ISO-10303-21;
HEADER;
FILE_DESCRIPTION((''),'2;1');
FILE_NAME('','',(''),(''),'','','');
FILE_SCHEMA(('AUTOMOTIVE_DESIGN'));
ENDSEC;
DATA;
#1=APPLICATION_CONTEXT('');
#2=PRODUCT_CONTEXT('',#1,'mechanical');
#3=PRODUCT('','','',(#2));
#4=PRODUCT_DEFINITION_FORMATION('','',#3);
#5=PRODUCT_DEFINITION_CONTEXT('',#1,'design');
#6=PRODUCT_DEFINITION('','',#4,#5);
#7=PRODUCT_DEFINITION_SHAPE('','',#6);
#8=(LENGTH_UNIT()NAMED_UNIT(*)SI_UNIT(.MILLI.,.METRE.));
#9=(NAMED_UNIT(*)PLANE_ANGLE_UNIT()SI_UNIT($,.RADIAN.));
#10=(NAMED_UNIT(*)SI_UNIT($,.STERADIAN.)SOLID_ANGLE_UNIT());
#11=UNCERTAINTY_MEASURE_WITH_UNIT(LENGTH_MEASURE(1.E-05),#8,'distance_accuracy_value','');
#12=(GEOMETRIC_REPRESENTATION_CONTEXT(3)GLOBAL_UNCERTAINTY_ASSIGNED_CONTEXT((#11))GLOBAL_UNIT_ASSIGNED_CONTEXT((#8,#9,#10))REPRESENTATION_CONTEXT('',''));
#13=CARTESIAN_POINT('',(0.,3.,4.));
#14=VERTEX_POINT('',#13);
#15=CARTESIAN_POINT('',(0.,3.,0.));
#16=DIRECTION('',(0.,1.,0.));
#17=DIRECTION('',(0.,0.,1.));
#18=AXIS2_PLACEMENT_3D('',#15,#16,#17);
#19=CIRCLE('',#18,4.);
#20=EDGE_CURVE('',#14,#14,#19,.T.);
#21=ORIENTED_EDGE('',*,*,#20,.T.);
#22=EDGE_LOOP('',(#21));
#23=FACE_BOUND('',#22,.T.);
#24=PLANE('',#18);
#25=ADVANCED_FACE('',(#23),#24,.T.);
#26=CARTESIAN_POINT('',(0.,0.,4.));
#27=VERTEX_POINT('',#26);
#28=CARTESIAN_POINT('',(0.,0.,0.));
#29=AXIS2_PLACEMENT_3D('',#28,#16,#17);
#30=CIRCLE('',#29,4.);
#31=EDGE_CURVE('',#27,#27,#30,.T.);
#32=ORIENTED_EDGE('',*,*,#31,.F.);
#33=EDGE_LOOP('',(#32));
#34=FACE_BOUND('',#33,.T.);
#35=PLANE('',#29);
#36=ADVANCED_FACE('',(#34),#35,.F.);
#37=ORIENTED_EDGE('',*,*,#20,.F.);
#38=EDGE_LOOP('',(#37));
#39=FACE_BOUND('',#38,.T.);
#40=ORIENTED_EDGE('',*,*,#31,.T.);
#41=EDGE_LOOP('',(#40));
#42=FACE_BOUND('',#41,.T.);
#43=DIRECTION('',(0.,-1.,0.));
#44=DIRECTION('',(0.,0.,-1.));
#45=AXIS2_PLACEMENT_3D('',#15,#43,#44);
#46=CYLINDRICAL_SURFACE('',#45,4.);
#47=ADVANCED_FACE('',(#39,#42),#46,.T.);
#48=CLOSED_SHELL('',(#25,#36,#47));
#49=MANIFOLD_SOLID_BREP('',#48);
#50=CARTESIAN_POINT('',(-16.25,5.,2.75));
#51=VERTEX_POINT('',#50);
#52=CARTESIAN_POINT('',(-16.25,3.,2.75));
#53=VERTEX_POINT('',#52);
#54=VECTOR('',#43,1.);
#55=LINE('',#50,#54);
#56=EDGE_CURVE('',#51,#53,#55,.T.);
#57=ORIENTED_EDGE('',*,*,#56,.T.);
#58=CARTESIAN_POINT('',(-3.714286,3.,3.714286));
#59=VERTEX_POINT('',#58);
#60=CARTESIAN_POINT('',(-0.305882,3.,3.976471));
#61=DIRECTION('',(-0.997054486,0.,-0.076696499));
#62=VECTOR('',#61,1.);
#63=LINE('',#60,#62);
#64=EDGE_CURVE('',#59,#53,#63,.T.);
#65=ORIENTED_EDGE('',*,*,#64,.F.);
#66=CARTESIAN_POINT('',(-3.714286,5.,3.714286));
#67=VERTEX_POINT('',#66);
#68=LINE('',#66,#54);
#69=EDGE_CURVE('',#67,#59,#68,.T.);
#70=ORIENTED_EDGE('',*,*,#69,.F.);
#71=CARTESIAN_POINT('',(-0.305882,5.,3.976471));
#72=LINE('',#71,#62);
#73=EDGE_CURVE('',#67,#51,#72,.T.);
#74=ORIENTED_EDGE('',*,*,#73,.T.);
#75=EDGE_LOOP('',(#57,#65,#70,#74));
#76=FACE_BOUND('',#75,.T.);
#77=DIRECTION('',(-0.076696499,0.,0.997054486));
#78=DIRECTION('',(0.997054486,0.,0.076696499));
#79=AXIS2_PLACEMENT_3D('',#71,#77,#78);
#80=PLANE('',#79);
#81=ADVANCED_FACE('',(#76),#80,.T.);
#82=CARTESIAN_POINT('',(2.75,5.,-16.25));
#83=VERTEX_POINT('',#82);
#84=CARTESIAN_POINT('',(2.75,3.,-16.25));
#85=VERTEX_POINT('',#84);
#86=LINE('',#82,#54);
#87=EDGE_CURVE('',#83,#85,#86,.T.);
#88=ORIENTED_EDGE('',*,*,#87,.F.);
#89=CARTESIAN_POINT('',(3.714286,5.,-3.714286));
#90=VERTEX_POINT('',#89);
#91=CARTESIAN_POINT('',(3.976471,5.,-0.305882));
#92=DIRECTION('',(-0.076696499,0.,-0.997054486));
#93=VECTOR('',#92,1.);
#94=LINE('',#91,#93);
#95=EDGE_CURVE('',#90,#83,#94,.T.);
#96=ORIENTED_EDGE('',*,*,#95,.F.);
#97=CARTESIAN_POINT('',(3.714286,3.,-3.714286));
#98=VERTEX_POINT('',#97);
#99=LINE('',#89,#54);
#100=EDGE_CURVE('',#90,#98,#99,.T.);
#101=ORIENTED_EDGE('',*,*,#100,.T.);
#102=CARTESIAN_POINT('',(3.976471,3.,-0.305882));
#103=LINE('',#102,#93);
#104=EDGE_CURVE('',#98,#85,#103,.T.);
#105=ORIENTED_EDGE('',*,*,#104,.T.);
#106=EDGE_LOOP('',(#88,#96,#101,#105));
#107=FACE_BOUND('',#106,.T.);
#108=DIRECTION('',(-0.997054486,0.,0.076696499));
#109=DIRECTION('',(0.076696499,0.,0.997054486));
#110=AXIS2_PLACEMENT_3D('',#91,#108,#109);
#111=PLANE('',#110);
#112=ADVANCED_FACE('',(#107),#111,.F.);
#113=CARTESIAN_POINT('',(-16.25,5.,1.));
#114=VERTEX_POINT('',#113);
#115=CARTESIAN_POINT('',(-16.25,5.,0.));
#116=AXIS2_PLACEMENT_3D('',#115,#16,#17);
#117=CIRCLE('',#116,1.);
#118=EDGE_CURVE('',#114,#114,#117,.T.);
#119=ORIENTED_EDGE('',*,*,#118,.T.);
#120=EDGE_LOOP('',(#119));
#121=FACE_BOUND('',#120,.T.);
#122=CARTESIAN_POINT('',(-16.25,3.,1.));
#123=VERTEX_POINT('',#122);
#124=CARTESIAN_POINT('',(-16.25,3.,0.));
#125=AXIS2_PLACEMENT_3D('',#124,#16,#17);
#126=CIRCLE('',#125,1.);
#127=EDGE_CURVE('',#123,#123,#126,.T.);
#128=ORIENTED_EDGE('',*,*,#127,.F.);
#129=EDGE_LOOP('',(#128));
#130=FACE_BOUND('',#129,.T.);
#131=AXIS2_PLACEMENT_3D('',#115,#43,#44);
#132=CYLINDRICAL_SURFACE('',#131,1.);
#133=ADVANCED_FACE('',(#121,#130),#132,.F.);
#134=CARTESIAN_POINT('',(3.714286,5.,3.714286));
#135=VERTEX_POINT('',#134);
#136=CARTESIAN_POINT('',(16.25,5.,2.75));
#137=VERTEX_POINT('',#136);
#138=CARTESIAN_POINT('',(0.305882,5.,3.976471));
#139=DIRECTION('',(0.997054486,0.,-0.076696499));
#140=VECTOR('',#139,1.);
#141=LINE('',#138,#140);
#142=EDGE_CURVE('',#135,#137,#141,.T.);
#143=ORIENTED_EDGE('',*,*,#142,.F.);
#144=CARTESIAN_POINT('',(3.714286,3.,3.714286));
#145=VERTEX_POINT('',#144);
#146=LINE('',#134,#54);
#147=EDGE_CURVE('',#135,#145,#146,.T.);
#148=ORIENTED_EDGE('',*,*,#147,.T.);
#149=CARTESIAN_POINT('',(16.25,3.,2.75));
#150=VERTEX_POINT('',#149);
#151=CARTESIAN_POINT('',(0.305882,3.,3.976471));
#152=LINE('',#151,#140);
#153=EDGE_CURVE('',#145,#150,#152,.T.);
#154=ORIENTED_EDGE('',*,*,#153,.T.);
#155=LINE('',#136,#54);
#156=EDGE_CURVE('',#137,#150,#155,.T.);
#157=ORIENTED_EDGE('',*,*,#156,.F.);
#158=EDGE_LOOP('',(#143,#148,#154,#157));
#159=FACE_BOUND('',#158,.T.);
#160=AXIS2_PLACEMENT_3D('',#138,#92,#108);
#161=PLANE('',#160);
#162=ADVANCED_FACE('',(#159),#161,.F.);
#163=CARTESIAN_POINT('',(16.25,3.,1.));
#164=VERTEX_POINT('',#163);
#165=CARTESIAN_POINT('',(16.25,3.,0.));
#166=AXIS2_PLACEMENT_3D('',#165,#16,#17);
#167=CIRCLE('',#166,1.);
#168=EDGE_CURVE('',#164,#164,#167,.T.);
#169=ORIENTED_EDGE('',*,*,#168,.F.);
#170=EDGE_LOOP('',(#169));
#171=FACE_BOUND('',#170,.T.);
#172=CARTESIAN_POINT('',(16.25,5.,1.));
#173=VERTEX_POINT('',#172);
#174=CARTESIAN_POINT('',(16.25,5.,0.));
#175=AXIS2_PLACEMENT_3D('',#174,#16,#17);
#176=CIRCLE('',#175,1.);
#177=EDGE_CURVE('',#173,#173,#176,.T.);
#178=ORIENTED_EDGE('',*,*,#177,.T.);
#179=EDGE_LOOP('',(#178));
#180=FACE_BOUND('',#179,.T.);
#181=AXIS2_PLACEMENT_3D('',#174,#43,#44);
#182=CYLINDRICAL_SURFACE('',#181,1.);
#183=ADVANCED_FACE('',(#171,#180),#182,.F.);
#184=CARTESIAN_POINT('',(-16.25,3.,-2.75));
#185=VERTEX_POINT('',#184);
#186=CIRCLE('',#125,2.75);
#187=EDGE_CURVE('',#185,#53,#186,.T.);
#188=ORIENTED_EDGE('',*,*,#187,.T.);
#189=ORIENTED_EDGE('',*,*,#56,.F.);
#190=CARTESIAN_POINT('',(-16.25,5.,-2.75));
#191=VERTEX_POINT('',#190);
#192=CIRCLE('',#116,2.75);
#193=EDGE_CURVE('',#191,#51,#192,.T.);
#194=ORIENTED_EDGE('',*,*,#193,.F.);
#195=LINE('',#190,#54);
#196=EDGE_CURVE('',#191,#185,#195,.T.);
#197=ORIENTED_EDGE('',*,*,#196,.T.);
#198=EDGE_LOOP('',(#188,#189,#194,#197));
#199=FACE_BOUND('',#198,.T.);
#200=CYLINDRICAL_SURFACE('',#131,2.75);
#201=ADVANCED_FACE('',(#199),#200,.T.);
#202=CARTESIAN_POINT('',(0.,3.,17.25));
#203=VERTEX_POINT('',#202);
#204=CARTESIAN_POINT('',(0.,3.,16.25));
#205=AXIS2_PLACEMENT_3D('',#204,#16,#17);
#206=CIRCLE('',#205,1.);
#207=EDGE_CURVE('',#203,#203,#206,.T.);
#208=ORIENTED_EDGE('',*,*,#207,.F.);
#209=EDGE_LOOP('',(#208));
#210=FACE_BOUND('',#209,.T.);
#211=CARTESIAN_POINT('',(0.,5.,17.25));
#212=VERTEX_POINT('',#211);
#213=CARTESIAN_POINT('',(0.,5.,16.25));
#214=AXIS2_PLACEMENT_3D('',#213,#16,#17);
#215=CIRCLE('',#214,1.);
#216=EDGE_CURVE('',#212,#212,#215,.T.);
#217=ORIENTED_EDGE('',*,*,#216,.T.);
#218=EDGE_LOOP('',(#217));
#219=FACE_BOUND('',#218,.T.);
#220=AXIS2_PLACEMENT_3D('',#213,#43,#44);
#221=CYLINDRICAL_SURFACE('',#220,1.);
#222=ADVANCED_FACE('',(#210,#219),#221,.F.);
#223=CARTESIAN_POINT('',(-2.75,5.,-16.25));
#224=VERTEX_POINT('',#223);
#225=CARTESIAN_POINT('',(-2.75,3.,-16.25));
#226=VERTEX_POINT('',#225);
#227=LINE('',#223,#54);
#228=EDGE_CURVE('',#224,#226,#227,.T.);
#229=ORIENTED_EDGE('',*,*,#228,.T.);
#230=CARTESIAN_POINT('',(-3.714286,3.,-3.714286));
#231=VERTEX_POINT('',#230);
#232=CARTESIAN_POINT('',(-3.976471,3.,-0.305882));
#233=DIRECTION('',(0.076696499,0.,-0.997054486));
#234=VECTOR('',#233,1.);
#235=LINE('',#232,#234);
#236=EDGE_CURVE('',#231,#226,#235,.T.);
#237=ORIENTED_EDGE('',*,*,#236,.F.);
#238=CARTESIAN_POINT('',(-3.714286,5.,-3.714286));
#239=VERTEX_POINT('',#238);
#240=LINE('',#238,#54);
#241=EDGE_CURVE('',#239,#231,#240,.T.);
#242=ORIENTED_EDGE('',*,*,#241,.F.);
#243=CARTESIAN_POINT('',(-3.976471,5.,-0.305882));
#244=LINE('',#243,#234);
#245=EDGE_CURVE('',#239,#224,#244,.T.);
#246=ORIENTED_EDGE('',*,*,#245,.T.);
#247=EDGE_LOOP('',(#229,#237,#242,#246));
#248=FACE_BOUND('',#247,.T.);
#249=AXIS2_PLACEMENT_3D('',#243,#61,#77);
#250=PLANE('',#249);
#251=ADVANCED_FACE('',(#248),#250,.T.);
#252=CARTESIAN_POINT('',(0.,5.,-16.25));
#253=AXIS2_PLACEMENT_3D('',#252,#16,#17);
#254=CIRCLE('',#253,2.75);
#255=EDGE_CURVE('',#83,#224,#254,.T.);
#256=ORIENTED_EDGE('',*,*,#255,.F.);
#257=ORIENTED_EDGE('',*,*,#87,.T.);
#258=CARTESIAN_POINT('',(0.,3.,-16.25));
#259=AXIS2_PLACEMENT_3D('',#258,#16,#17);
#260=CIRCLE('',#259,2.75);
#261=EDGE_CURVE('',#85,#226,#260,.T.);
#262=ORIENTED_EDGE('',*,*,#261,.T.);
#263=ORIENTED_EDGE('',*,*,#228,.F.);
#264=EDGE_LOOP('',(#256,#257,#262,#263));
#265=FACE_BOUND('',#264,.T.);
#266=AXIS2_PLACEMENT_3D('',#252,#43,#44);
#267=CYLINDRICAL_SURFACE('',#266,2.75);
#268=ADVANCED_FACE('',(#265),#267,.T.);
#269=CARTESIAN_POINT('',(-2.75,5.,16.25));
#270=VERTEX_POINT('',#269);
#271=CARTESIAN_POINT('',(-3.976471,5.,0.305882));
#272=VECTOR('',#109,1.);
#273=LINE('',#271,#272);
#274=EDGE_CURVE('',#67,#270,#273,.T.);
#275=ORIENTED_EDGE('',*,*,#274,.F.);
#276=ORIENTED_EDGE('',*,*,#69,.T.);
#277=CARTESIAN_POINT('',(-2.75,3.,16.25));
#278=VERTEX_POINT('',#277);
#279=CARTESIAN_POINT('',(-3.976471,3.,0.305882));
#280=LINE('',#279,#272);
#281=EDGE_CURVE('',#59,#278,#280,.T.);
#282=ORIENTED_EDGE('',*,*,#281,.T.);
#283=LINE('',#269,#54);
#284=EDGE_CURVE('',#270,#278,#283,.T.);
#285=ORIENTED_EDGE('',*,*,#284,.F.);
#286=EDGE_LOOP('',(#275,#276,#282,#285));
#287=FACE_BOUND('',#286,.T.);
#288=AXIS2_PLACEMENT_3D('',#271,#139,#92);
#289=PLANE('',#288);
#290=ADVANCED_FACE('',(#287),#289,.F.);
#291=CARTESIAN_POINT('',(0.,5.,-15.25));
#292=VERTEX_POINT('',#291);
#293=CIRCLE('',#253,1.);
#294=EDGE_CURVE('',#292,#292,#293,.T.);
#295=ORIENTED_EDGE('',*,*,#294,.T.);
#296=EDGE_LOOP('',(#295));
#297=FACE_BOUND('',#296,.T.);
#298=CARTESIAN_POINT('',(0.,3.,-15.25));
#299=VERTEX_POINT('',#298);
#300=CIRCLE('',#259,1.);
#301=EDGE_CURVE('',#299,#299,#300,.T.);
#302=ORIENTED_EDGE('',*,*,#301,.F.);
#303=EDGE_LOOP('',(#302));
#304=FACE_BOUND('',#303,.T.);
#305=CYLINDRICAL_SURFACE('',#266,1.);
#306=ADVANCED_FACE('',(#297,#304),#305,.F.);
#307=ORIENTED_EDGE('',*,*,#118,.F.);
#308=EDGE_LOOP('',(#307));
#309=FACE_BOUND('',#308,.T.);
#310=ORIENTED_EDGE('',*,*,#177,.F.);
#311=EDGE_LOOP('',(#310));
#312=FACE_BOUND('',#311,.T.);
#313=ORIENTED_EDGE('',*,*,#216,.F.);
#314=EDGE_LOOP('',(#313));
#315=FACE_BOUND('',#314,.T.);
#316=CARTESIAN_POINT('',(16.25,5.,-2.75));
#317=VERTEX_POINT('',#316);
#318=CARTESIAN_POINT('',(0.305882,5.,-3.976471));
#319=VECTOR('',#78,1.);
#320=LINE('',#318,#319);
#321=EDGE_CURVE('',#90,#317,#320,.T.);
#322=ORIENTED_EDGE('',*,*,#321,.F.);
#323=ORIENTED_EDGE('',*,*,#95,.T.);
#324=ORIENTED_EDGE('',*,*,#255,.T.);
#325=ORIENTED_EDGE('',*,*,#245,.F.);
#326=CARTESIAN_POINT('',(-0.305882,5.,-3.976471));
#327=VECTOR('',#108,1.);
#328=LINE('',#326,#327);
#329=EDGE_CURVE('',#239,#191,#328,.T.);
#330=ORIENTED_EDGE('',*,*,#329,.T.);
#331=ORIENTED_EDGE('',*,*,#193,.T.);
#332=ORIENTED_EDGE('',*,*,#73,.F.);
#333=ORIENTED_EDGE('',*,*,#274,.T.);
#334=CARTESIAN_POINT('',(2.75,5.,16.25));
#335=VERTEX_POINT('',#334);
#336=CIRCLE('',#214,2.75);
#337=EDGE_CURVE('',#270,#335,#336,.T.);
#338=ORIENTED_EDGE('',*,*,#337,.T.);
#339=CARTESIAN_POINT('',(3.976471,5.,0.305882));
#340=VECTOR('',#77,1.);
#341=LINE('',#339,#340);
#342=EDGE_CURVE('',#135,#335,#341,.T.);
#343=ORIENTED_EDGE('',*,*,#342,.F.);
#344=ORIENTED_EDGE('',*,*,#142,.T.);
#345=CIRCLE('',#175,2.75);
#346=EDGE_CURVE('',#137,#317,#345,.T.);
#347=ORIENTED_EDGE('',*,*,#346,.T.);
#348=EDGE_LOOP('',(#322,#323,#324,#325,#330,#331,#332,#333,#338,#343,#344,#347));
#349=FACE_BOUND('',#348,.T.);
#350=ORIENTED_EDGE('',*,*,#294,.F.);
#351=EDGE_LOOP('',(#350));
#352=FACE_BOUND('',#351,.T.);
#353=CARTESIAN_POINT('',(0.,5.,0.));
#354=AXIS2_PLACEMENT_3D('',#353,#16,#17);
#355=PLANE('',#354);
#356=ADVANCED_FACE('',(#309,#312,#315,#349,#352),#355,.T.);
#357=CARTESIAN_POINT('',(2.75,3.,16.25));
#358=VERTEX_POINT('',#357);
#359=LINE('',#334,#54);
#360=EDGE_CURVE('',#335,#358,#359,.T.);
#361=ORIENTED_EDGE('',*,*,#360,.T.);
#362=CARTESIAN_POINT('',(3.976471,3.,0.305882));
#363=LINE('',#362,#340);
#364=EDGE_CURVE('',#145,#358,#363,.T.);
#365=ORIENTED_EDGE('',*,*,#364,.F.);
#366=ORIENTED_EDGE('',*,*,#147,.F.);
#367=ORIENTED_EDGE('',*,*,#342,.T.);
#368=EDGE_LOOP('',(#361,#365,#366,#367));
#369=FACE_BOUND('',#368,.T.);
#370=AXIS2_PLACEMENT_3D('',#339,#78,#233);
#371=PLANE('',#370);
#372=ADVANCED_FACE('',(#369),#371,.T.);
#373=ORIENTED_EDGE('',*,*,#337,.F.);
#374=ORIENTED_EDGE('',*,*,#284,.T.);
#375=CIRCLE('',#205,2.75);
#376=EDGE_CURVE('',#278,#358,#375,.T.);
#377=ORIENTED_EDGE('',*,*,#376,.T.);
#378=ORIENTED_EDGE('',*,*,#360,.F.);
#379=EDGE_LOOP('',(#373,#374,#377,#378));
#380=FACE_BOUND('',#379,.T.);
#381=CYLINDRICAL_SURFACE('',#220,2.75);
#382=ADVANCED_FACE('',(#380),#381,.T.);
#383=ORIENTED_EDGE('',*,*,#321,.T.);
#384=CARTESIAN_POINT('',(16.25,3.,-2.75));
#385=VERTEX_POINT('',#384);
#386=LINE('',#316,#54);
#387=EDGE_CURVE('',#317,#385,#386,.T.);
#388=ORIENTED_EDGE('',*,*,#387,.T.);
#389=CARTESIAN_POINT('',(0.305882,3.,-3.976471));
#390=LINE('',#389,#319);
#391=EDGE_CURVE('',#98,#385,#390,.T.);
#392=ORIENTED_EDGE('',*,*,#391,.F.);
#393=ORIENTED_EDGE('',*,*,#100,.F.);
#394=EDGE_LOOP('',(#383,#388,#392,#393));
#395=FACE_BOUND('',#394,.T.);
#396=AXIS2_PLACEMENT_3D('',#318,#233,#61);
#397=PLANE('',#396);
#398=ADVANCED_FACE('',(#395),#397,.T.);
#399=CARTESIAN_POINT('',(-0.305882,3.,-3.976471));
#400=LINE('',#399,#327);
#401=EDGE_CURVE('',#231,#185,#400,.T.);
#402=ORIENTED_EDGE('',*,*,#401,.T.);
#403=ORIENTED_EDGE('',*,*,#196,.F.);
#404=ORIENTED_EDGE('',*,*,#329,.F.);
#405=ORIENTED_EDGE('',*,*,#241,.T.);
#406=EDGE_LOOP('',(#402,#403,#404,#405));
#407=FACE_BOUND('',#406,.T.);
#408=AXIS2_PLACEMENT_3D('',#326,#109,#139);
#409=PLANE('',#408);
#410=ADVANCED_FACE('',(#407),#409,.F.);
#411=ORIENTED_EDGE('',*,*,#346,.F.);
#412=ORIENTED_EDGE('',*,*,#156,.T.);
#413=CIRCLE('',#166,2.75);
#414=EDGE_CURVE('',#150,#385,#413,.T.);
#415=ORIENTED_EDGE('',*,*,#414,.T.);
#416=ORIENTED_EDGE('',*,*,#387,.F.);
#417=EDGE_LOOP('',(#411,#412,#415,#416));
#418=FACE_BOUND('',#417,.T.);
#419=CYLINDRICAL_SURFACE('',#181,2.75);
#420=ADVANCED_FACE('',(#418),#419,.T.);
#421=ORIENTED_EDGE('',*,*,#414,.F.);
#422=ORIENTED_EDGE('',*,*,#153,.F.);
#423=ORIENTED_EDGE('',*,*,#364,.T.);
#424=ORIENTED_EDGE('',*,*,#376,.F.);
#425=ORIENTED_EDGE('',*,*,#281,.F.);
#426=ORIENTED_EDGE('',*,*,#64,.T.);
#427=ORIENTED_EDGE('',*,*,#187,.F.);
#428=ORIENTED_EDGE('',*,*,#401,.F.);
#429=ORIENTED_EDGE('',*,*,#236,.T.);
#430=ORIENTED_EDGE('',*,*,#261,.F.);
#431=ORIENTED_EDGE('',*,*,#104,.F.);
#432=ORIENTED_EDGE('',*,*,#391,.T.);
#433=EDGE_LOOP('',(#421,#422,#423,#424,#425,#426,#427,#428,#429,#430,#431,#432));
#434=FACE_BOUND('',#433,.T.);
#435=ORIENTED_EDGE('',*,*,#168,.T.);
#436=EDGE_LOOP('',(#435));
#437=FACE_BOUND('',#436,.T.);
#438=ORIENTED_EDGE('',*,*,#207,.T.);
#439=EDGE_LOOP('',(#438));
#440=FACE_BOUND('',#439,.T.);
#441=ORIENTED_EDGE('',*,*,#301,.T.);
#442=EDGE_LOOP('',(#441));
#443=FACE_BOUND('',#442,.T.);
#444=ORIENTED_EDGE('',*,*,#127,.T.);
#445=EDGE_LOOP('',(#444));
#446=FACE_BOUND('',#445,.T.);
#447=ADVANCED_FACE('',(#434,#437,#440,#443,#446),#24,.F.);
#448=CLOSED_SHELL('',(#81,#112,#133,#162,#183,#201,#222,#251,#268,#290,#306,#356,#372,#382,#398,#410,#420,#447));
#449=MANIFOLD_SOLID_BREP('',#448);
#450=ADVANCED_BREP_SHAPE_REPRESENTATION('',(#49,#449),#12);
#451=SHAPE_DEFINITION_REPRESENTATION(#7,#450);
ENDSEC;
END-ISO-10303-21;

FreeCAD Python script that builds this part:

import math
import FreeCAD as App
import Part
import Sketcher

V = App.Vector

doc = App.newDocument("Part")
body = doc.addObject("PartDesign::Body", "Body")

# Sketch on XZ plane
sketch1 = doc.addObject("Sketcher::SketchObject", "Sketch")
body.addObject(sketch1)
sketch1.AttachmentSupport = (doc.XZ_Plane, [""])
sketch1.MapMode = "FlatFace"
sketch1.addGeometry(Part.Circle(V(0, 0, 0), V(0, 0, 1), 4), False)
sketch1.addConstraint([
    Sketcher.Constraint("Coincident", 0, 3, -1, 1),
    Sketcher.Constraint("Diameter", 0, 8.0),
])
pad1 = doc.addObject("PartDesign::Pad", "Pad")
body.addObject(pad1)
pad1.Profile = sketch1
pad1.Length = 3
pad1.Reversed = True
body2 = doc.addObject("PartDesign::Body", "Body001")

# Sketch on XZ plane
sketch2 = doc.addObject("Sketcher::SketchObject", "Sketch001")
body2.addObject(sketch2)
sketch2.AttachmentSupport = (doc.getObject("XZ_Plane001"), [""])
sketch2.MapMode = "FlatFace"
sketch2.AttachmentOffset = App.Placement(V(0, 0, -3), App.Rotation())
sketch2.addGeometry([
    Part.LineSegment(V(16.2, -2.8, 0), V(3.7, -3.7, 0)),  # 0
    Part.LineSegment(V(3.7, -3.7, 0), V(2.8, -16.2, 0)),  # 1
    Part.ArcOfCircle(Part.Circle(V(0, -16.2, 0), V(0, 0, 1), 2.8), math.radians(180), math.radians(360)),  # 2
    Part.LineSegment(V(-2.8, -16.2, 0), V(-3.7, -3.7, 0)),  # 3
    Part.LineSegment(V(-3.7, -3.7, 0), V(-16.2, -2.8, 0)),  # 4
    Part.ArcOfCircle(Part.Circle(V(-16.2, 0, 0), V(0, 0, 1), 2.8), math.radians(90), math.radians(270)),  # 5
    Part.LineSegment(V(-16.2, 2.8, 0), V(-3.7, 3.7, 0)),  # 6
    Part.LineSegment(V(-3.7, 3.7, 0), V(-2.8, 16.2, 0)),  # 7
    Part.ArcOfCircle(Part.Circle(V(0, 16.2, 0), V(0, 0, 1), 2.8), math.radians(0), math.radians(180)),  # 8
    Part.LineSegment(V(2.8, 16.2, 0), V(3.7, 3.7, 0)),  # 9
    Part.LineSegment(V(3.7, 3.7, 0), V(16.2, 2.8, 0)),  # 10
    Part.ArcOfCircle(Part.Circle(V(16.2, 0, 0), V(0, 0, 1), 2.8), math.radians(-90), math.radians(90)),  # 11
    Part.Circle(V(0, 16.2, 0), V(0, 0, 1), 1),  # 12
    Part.Circle(V(-16.2, 0, 0), V(0, 0, 1), 1),  # 13
    Part.Circle(V(16.2, 0, 0), V(0, 0, 1), 1),  # 14
    Part.Circle(V(0, -16.2, 0), V(0, 0, 1), 1),  # 15
], False)
sketch2.addConstraint([
    Sketcher.Constraint("Coincident", 0, 2, 1, 1),
    Sketcher.Constraint("Coincident", 1, 2, 2, 2),
    Sketcher.Constraint("Coincident", 2, 1, 3, 1),
    Sketcher.Constraint("Coincident", 3, 2, 4, 1),
    Sketcher.Constraint("Coincident", 4, 2, 5, 2),
    Sketcher.Constraint("Coincident", 5, 1, 6, 1),
    Sketcher.Constraint("Coincident", 6, 2, 7, 1),
    Sketcher.Constraint("Coincident", 7, 2, 8, 2),
    Sketcher.Constraint("Coincident", 8, 1, 9, 1),
    Sketcher.Constraint("Coincident", 9, 2, 10, 1),
    Sketcher.Constraint("Coincident", 10, 2, 11, 2),
    Sketcher.Constraint("Coincident", 11, 1, 0, 1),
    Sketcher.Constraint("Coincident", 12, 3, 8, 3),
    Sketcher.Constraint("Coincident", 13, 3, 5, 3),
    Sketcher.Constraint("Coincident", 14, 3, 11, 3),
    Sketcher.Constraint("Coincident", 15, 3, 2, 3),
    Sketcher.Constraint("Equal", 2, 5),
    Sketcher.Constraint("Equal", 5, 8),
    Sketcher.Constraint("Equal", 8, 11),
    Sketcher.Constraint("Equal", 12, 13),
    Sketcher.Constraint("Equal", 13, 14),
    Sketcher.Constraint("Equal", 14, 15),
    Sketcher.Constraint("Symmetric", 2, 3, 8, 3, -1, 1),
    Sketcher.Constraint("Symmetric", 5, 3, 11, 3, -1, 1),
    Sketcher.Constraint("Symmetric", 0, 2, 6, 2, -1, 1),
    Sketcher.Constraint("Symmetric", 3, 2, 9, 2, -1, 1),
    Sketcher.Constraint("Symmetric", 1, 2, 2, 1, -2),
    Sketcher.Constraint("Symmetric", 0, 2, 3, 2, -2),
    Sketcher.Constraint("Symmetric", 5, 1, 10, 2, -2),
    Sketcher.Constraint("Perpendicular", 0, 3),
    Sketcher.Constraint("Perpendicular", 1, 4),
    Sketcher.Constraint("Perpendicular", 3, 6),
    Sketcher.Constraint("Perpendicular", 4, 7),
    Sketcher.Constraint("Perpendicular", 6, 9),
    Sketcher.Constraint("Horizontal", 15, 3, 1, 2),
    Sketcher.Constraint("Vertical", 13, 3, 4, 2),
    Sketcher.Constraint("Equal", 0, 1),
    Sketcher.Constraint("Diameter", 12, 2.0),
    Sketcher.Constraint("Radius", 2, 2.75),
    Sketcher.Constraint("DistanceY", 2, 3, 8, 3, 32.5),
    Sketcher.Constraint("DistanceX", 3, 2, 0, 2, 7.428571),
])
pad2 = doc.addObject("PartDesign::Pad", "Pad001")
body2.addObject(pad2)
pad2.Profile = sketch2
pad2.Length = 2
pad2.Reversed = True

doc.recompute()
